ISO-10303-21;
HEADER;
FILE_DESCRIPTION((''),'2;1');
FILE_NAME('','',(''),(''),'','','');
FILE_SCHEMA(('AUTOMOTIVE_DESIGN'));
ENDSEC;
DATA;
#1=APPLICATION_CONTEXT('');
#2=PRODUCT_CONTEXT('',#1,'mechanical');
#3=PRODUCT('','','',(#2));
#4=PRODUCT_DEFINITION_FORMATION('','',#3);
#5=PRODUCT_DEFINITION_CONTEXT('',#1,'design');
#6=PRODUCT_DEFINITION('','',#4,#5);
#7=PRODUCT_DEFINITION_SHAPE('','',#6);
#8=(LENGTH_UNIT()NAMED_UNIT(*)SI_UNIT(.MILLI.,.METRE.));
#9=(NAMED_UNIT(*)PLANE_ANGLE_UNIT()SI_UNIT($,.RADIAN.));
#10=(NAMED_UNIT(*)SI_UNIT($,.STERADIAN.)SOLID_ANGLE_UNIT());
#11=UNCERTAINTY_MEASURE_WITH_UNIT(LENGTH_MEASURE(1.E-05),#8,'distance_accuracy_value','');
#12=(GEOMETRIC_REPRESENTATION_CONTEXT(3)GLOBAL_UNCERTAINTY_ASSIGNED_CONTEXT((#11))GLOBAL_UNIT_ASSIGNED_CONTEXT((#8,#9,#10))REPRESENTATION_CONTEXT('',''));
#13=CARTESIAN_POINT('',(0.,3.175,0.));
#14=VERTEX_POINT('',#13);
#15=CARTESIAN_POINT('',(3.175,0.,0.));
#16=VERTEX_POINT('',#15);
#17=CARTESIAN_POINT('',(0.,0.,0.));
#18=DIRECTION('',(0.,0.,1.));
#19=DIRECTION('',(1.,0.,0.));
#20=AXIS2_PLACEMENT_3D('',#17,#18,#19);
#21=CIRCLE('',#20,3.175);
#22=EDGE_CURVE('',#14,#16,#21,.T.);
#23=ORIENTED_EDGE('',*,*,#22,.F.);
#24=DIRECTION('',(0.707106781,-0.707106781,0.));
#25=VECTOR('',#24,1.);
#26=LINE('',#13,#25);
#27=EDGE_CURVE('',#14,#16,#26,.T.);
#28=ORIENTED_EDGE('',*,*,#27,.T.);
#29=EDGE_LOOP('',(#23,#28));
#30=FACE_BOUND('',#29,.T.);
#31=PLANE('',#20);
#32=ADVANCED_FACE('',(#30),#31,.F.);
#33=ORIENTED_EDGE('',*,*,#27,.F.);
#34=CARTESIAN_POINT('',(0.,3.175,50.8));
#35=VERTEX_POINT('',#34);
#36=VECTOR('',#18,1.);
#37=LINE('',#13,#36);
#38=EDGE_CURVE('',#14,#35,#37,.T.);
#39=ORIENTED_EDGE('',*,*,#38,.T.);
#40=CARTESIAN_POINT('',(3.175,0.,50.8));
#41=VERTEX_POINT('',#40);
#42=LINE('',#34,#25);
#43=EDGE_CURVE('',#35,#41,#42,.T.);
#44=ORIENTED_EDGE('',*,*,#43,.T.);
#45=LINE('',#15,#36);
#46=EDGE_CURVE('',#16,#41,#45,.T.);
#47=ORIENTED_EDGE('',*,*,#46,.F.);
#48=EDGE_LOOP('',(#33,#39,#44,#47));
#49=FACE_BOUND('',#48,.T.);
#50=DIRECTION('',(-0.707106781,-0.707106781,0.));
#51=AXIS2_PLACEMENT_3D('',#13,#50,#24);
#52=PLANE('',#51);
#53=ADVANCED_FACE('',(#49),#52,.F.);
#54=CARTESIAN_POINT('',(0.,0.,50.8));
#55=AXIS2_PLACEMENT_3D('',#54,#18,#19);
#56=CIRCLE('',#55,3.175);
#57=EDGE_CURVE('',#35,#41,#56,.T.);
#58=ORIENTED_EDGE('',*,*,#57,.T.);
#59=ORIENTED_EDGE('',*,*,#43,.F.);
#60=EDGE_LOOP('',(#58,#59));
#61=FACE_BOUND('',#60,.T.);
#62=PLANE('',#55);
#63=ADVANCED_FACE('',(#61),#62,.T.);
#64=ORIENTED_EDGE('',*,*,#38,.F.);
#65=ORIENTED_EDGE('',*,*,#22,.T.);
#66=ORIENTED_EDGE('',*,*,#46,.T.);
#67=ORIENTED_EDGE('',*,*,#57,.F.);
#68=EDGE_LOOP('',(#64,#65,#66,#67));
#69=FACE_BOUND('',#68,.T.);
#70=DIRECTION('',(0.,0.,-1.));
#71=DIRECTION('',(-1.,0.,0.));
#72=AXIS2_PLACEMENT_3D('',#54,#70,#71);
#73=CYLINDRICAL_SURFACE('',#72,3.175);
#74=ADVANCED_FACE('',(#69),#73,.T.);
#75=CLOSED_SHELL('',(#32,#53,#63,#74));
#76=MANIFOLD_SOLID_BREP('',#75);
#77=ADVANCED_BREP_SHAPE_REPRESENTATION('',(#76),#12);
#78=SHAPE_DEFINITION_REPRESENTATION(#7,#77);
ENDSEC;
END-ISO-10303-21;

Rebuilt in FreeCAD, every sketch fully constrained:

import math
import FreeCAD as App
import Part
import Sketcher
from FreeCAD import Vector
Q = App.Units.Quantity

doc = App.newDocument("Part")
body = doc.addObject("PartDesign::Body", "Body")

# Sketch on XY plane
sketch1 = doc.addObject("Sketcher::SketchObject", "Sketch")
body.addObject(sketch1)
sketch1.AttachmentSupport = (doc.XY_Plane, [""])
sketch1.MapMode = "FlatFace"
sketch1.addGeometry(Part.Circle(Vector(0, 0, 0), Vector(0, 0, 1), 3.175), False)
sketch1.addConstraint([
    Sketcher.Constraint("Coincident", 0, 3, -1, 1),
    Sketcher.Constraint("Diameter", 0, Q("0.25 in")),
])
pad1 = doc.addObject("PartDesign::Pad", "Pad")
body.addObject(pad1)
pad1.Profile = sketch1
pad1.Length = Q("2 in")

# Sketch on XY plane
sketch2 = doc.addObject("Sketcher::SketchObject", "Sketch001")
body.addObject(sketch2)
sketch2.AttachmentSupport = (doc.XY_Plane, [""])
sketch2.MapMode = "FlatFace"
sketch2.AttachmentOffset = App.Placement(Vector(0, 0, 2 * 25.4), App.Rotation())
sketch2.addGeometry([
    Part.LineSegment(Vector(0, 3.175, 0), Vector(3.175, 0, 0)),
    Part.ArcOfCircle(Part.Circle(Vector(0, 0, 0), Vector(0, 0, 1), 3.175), math.radians(0), math.radians(90)),
], False)
sketch2.addConstraint([
    Sketcher.Constraint("Coincident", 0, 1, 1, 2),
    Sketcher.Constraint("Coincident", 1, 1, 0, 2),
    Sketcher.Constraint("Coincident", 1, 3, -1, 1),
    Sketcher.Constraint("PointOnObject", 0, 1, -2),
    Sketcher.Constraint("PointOnObject", 1, 1, -1),
    Sketcher.Constraint("Radius", 1, Q("0.125 in")),
])
pocket1 = doc.addObject("PartDesign::Pocket", "Pocket")
body.addObject(pocket1)
pocket1.Profile = sketch2
pocket1.Type = "ThroughAll"

doc.recompute()
